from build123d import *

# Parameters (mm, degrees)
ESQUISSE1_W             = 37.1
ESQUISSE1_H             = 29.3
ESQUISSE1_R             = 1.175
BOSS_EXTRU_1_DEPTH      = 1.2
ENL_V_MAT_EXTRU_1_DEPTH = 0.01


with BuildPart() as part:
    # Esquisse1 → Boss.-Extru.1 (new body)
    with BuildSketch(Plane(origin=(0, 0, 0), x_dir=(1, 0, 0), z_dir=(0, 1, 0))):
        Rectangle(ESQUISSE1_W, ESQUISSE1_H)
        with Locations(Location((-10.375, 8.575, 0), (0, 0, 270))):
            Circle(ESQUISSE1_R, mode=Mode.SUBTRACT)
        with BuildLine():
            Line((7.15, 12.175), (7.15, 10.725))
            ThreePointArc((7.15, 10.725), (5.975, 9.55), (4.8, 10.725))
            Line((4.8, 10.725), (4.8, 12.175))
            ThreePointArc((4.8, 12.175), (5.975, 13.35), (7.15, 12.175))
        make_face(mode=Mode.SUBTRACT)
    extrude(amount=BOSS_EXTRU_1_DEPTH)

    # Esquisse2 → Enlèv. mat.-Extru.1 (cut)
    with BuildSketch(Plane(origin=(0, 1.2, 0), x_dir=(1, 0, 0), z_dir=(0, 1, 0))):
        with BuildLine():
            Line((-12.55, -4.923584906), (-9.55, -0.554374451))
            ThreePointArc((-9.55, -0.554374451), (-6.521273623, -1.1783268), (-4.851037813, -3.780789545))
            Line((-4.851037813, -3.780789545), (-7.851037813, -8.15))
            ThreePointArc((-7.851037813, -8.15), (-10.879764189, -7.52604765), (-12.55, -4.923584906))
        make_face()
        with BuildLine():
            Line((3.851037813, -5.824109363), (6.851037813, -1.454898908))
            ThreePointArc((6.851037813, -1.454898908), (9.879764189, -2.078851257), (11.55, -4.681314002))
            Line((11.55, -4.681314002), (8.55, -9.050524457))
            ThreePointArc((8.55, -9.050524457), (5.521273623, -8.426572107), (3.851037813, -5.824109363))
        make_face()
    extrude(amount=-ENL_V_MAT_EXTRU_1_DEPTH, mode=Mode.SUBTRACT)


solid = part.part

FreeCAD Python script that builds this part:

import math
import FreeCAD as App
import Part
import Sketcher


def add_polygon(sketch, points):
    """Adds a closed chain of lines whose ends are joined by coincident constraints."""
    first, n = sketch.GeometryCount, len(points)
    for a, b in zip(points, points[1:] + points[:1]):
        sketch.addGeometry(Part.LineSegment(App.Vector(*a, 0), App.Vector(*b, 0)), False)
    for i in range(n):
        sketch.addConstraint(Sketcher.Constraint("Coincident", first + i, 2, first + (i + 1) % n, 1))

doc = App.newDocument("Part")
body = doc.addObject("PartDesign::Body", "Body")

sketch1 = body.newObject("Sketcher::SketchObject", "Sketch")
sketch1.AttachmentSupport = (doc.getObject("XZ_Plane"), [""])
sketch1.MapMode = "FlatFace"
add_polygon(sketch1, [(-18.6, -14.7), (-18.6, 14.7), (18.6, 14.7), (18.6, -14.7)])
sketch1.addGeometry(Part.Circle(App.Vector(-10.4, -8.6, 0), App.Vector(0, 0, 1), 1.2), False)
sketch1.addGeometry(Part.ArcOfCircle(Part.Circle(App.Vector(6, -12.2, 0), App.Vector(0, 0, 1), 1.2), math.radians(180), math.radians(360)), False)
sketch1.addGeometry(Part.LineSegment(App.Vector(7.2, -12.2, 0), App.Vector(7.2, -10.7, 0)), False)
sketch1.addGeometry(Part.ArcOfCircle(Part.Circle(App.Vector(6, -10.7, 0), App.Vector(0, 0, 1), 1.2), math.radians(0), math.radians(180)), False)
sketch1.addGeometry(Part.LineSegment(App.Vector(4.8, -10.7, 0), App.Vector(4.8, -12.2, 0)), False)
sketch1.addConstraint([
    Sketcher.Constraint("Tangent", 5, 2, 6, 1),
    Sketcher.Constraint("Tangent", 6, 2, 7, 1),
    Sketcher.Constraint("Tangent", 7, 2, 8, 1),
    Sketcher.Constraint("Tangent", 8, 2, 5, 1),
    Sketcher.Constraint("Vertical", 0),
    Sketcher.Constraint("Horizontal", 1),
    Sketcher.Constraint("Vertical", 2),
    Sketcher.Constraint("Horizontal", 3),
    Sketcher.Constraint("Vertical", 6),
    Sketcher.Constraint("Vertical", 8),
    Sketcher.Constraint("Equal", 4, 5),
    Sketcher.Constraint("Symmetric", 0, 2, 2, 2, -1, 1),
    Sketcher.Constraint("Diameter", 4, 2.35),
    Sketcher.Constraint("DistanceX", 1, 1, 1, 2, 37.1),
    Sketcher.Constraint("DistanceY", 0, 1, 0, 2, 29.3),
    Sketcher.Constraint("DistanceY", 6, 1, 6, 2, 1.45),
    Sketcher.Constraint("DistanceX", -1, 1, 7, 2, 4.8),
    Sketcher.Constraint("DistanceY", 5, 3, 4, 3, 3.6),
    Sketcher.Constraint("DistanceX", 4, 3, 5, 3, 16.35),
    Sketcher.Constraint("DistanceY", 4, 3, -1, 1, 8.575),
])
pad1 = body.newObject("PartDesign::Pad", "Pad")
pad1.Profile = sketch1
pad1.Length = 1.2
pad1.Reversed = True

sketch2 = body.newObject("Sketcher::SketchObject", "Sketch001")
sketch2.AttachmentSupport = (doc.getObject("XZ_Plane"), [""])
sketch2.MapMode = "FlatFace"
sketch2.AttachmentOffset = App.Placement(App.Vector(0, 0, -1.2), App.Rotation())
sketch2.addGeometry([
    Part.LineSegment(App.Vector(-9.6, 0.6, 0), App.Vector(-12.6, 4.9, 0)),
    Part.ArcOfCircle(Part.Circle(App.Vector(-8.6, 4.2, 0), App.Vector(0, 0, 1), 4), math.radians(79), math.radians(170)),
    Part.LineSegment(App.Vector(-7.9, 8.2, 0), App.Vector(-4.9, 3.8, 0)),
    Part.ArcOfCircle(Part.Circle(App.Vector(-8.8, 4.5, 0), App.Vector(0, 0, 1), 4), math.radians(-101), math.radians(-10)),
    Part.LineSegment(App.Vector(6.9, 1.5, 0), App.Vector(3.9, 5.8, 0)),
    Part.ArcOfCircle(Part.Circle(App.Vector(7.8, 5.1, 0), App.Vector(0, 0, 1), 4), math.radians(79), math.radians(170)),
    Part.LineSegment(App.Vector(8.6, 9.1, 0), App.Vector(11.6, 4.7, 0)),
    Part.ArcOfCircle(Part.Circle(App.Vector(7.6, 5.4, 0), App.Vector(0, 0, 1), 4), math.radians(-101), math.radians(-10)),
], False)
sketch2.addConstraint([
    Sketcher.Constraint("Coincident", 0, 2, 1, 2),
    Sketcher.Constraint("Coincident", 1, 1, 2, 1),
    Sketcher.Constraint("Coincident", 2, 2, 3, 2),
    Sketcher.Constraint("Coincident", 3, 1, 0, 1),
    Sketcher.Constraint("Coincident", 4, 2, 5, 2),
    Sketcher.Constraint("Coincident", 5, 1, 6, 1),
    Sketcher.Constraint("Coincident", 6, 2, 7, 2),
    Sketcher.Constraint("Coincident", 7, 1, 4, 1),
    Sketcher.Constraint("Equal", 1, 3),
    Sketcher.Constraint("Equal", 3, 5),
    Sketcher.Constraint("Equal", 5, 7),
    Sketcher.Constraint("Parallel", 0, 2),
    Sketcher.Constraint("Parallel", 2, 4),
    Sketcher.Constraint("Parallel", 4, 6),
    Sketcher.Constraint("Equal", 0, 2),
    Sketcher.Constraint("Equal", 2, 4),
    Sketcher.Constraint("Equal", 4, 6),
    Sketcher.Constraint("DistanceX", 1, 1, 2, 2, 3.0),
    Sketcher.Constraint("Distance", 0, 5.3),
    Sketcher.Constraint("DistanceX", 0, 2, -1, 1, 12.55),
    Sketcher.Constraint("DistanceY", -1, 1, 1, 1, 8.15),
    Sketcher.Constraint("DistanceX", -1, 1, 5, 1, 8.55),
    Sketcher.Constraint("Radius", 1, 3.984375),
    Sketcher.Constraint("DistanceY", -1, 1, 7, 1, 1.454899),
    Sketcher.Constraint("DistanceY", 2, 2, 7, 3, 1.582698),
    Sketcher.Constraint("DistanceY", 1, 3, 4, 2, 1.582698),
    Sketcher.Constraint("DistanceY", 1, 3, 3, 3, 0.221552),
    Sketcher.Constraint("DistanceY", 5, 3, 7, 3, 0.221552),
])
pocket1 = body.newObject("PartDesign::Pocket", "Pocket")
pocket1.Profile = sketch2
pocket1.Length = 0.01
pocket1.Reversed = True

doc.recompute()
